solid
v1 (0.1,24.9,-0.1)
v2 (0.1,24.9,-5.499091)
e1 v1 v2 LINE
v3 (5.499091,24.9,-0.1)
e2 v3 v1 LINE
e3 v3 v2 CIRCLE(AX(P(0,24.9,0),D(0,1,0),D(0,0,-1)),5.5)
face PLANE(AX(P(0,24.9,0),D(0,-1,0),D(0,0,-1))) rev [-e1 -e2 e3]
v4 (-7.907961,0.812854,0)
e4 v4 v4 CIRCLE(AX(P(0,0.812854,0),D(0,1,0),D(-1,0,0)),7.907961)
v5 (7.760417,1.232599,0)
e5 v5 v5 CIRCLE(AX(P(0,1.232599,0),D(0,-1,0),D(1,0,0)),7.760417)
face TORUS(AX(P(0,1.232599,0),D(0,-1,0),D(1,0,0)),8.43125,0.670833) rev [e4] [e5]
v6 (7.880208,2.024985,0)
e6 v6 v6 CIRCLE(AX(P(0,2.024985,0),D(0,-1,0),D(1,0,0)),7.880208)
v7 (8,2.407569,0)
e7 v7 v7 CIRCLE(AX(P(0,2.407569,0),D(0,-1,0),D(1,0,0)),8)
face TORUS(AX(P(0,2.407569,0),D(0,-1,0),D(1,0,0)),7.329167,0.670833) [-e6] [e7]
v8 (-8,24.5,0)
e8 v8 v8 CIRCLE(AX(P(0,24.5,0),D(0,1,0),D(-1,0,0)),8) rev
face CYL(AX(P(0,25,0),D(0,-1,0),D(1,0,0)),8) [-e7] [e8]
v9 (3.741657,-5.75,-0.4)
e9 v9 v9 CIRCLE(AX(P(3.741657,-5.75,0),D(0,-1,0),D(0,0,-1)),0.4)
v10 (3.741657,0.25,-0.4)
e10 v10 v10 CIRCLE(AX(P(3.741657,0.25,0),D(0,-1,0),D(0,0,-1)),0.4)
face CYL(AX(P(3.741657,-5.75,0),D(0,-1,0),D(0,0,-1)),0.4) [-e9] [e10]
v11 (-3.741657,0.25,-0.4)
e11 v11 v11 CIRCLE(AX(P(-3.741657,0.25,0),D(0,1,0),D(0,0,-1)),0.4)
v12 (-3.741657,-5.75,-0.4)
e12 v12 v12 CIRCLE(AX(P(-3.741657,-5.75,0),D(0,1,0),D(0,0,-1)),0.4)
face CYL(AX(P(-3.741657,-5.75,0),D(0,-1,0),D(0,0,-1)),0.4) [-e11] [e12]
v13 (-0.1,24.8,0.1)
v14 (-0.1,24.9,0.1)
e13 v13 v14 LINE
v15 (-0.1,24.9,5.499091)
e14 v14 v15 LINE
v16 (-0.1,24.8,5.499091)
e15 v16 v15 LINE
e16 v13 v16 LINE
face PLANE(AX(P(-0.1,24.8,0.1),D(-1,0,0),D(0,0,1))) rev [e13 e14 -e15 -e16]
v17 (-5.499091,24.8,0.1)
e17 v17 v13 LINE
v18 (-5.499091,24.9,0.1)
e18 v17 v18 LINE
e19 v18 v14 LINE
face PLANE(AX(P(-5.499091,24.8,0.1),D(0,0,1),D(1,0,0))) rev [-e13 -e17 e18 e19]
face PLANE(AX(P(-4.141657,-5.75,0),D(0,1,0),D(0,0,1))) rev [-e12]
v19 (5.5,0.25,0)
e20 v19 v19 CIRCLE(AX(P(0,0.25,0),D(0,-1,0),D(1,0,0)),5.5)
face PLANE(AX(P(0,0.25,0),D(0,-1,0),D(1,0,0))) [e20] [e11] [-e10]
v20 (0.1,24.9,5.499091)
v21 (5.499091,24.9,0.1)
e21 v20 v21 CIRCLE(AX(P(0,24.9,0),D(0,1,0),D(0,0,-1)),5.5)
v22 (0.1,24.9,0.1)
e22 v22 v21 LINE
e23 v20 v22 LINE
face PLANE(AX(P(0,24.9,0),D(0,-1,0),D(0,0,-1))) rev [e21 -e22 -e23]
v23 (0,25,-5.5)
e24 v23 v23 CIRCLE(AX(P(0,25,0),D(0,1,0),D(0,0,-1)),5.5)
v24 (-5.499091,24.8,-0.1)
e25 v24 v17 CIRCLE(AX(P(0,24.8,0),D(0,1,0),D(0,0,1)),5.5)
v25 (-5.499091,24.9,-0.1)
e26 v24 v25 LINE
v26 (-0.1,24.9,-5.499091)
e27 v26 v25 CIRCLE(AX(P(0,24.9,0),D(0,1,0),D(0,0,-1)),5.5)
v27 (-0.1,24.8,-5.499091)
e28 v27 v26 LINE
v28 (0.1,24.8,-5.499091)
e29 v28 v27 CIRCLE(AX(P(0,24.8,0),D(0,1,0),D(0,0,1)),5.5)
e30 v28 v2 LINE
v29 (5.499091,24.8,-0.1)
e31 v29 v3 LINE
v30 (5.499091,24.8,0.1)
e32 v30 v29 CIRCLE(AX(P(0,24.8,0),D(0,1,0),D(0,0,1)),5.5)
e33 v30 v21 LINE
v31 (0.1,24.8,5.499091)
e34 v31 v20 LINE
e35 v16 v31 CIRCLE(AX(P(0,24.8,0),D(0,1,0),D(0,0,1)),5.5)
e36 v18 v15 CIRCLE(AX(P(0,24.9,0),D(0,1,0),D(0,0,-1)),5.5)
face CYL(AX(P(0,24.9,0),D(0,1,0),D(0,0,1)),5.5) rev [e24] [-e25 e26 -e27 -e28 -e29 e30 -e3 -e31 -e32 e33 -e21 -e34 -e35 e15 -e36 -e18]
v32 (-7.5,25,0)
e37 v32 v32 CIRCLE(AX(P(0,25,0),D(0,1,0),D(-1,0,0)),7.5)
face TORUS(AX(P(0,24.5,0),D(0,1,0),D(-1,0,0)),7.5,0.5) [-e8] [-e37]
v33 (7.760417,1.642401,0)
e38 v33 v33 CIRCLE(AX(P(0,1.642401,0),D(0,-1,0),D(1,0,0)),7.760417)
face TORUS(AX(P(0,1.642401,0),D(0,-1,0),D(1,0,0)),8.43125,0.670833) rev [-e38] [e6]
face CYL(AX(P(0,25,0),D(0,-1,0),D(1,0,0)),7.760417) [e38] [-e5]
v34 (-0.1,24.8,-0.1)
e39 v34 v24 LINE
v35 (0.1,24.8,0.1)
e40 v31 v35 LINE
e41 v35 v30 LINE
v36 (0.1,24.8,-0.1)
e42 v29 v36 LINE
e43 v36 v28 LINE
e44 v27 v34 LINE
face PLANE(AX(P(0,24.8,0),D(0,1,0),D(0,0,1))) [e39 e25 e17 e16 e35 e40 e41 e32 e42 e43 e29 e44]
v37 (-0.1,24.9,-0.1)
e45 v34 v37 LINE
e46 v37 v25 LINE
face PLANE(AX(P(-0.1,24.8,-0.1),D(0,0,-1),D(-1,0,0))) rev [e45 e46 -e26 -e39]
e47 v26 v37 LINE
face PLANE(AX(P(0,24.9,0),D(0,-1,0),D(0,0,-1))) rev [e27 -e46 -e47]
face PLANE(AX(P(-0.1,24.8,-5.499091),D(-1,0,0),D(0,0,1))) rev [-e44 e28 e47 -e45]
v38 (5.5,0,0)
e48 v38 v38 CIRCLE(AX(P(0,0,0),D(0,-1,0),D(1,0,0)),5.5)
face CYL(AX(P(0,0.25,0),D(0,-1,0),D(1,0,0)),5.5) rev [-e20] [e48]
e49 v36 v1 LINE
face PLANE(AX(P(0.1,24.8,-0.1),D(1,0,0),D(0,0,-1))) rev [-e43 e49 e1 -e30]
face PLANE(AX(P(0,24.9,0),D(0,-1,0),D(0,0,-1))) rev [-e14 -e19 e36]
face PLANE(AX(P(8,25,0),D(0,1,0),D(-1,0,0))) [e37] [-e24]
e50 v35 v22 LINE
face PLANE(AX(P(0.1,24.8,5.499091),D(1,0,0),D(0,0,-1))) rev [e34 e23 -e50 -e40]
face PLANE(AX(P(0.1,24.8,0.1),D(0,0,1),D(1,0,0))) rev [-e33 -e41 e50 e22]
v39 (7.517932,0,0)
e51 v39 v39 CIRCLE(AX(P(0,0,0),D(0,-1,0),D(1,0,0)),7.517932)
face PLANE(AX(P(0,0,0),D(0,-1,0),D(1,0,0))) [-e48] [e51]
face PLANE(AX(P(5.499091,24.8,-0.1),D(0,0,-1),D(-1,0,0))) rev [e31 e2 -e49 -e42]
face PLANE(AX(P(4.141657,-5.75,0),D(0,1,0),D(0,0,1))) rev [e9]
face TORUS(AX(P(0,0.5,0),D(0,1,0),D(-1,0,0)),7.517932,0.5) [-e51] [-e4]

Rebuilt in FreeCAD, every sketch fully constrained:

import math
import FreeCAD as App
import Part
import Sketcher
from FreeCAD import Vector
Q = App.Units.Quantity


def edges_at(feature, points):
    """Names of the edges that pass closest to the given points."""
    edges = feature.Shape.Edges
    near = lambda p: min(range(len(edges)), key=lambda i: edges[i].distToShape(Part.Vertex(*p))[0])
    return sorted({f"Edge{near(p) + 1}" for p in points})


def add_polygon(sketch, points):
    """Adds a closed chain of lines whose ends are joined by coincident constraints."""
    first, n = sketch.GeometryCount, len(points)
    for a, b in zip(points, points[1:] + points[:1]):
        sketch.addGeometry(Part.LineSegment(App.Vector(*a, 0), App.Vector(*b, 0)), False)
    for i in range(n):
        sketch.addConstraint(Sketcher.Constraint("Coincident", first + i, 2, first + (i + 1) % n, 1))

doc = App.newDocument("Part")
params = doc.addObject("Spreadsheet::Sheet", "Params")
for row, (alias, value) in enumerate([
    ("sketch1_width", "8 mm"),
    ("sketch1_height", "25 mm"),
    ("revolution_angle", "360 deg"),
    ("sketch2_diameter", "11 mm"),
    ("pocket1_length", "0.1 mm"),
    ("pocket2_length", "0.1 mm"),
    ("sketch4_diameter", "11 mm"),
    ("pocket3_length", "0.25 mm"),
    ("fillet_radius", "0.5 mm"),
    ("sketch5_height", "6 mm"),
    ("sketch5_width", "0.4 mm"),
    ("revolution2_angle", "360 deg"),
], start=1):
    params.set(f"A{row}", alias)
    params.set(f"B{row}", "=" + value)
    params.setAlias(f"B{row}", alias)

body = doc.addObject("PartDesign::Body", "Body")

# Sketch on XY plane
sketch1 = body.newObject("Sketcher::SketchObject", "Sketch")
sketch1.AttachmentSupport = (doc.getObject("XY_Plane"), [""])
sketch1.MapMode = "FlatFace"
sketch1.addGeometry([
    Part.LineSegment(Vector(8, 25, 0), Vector(0, 25, 0)),  # 0
    Part.LineSegment(Vector(0, 25, 0), Vector(0, 0, 0)),  # 1
    Part.LineSegment(Vector(0, 0, 0), Vector(8, 0, 0)),  # 2
    Part.ArcOfCircle(Part.Circle(Vector(7.42, 0.35, 0), Vector(0, 0, 1), 0.67), math.radians(-31), math.radians(41)),  # 3
    Part.ArcOfCircle(Part.Circle(Vector(8.43, 1.23, 0), Vector(0, 0, 1), 0.67), math.radians(180), math.radians(221)),  # 4
    Part.LineSegment(Vector(7.76, 1.23, 0), Vector(7.76, 1.64, 0)),  # 5
    Part.ArcOfCircle(Part.Circle(Vector(8.43, 1.64, 0), Vector(0, 0, 1), 0.67), math.radians(145), math.radians(180)),  # 6
    Part.ArcOfCircle(Part.Circle(Vector(7.33, 2.41, 0), Vector(0, 0, 1), 0.67), math.radians(-35), math.radians(0)),  # 7
    Part.LineSegment(Vector(8, 2.41, 0), Vector(8, 25, 0)),  # 8
], False)
sketch1.addConstraint([
    Sketcher.Constraint("Coincident", 0, 2, 1, 1),
    Sketcher.Constraint("Coincident", 1, 2, 2, 1),
    Sketcher.Constraint("Coincident", 2, 2, 3, 1),
    Sketcher.Constraint("Tangent", 3, 2, 4, 2),
    Sketcher.Constraint("Tangent", 4, 1, 5, 1),
    Sketcher.Constraint("Tangent", 5, 2, 6, 2),
    Sketcher.Constraint("Tangent", 6, 1, 7, 1),
    Sketcher.Constraint("Tangent", 7, 2, 8, 1),
    Sketcher.Constraint("Coincident", 8, 2, 0, 1),
    Sketcher.Constraint("Horizontal", 0),
    Sketcher.Constraint("Vertical", 1),
    Sketcher.Constraint("Horizontal", 2),
    Sketcher.Constraint("Vertical", 5),
    Sketcher.Constraint("Vertical", 8),
    Sketcher.Constraint("Coincident", 1, 2, -1, 1),
    Sketcher.Constraint("Equal", 3, 4),
    Sketcher.Constraint("Equal", 4, 6),
    Sketcher.Constraint("Equal", 6, 7),
    Sketcher.Constraint("Vertical", 2, 2, 7, 2),
    Sketcher.Constraint("DistanceX", 0, 2, 0, 1, Q("8 mm")),
    Sketcher.Constraint("DistanceY", 1, 2, 1, 1, Q("25 mm")),
    Sketcher.Constraint("DistanceY", 5, 1, 5, 2, Q("0.409802 mm")),
    Sketcher.Constraint("Radius", 3, Q("0.670833 mm")),
    Sketcher.Constraint("DistanceY", 8, 1, 8, 2, Q("22.592431 mm")),
    Sketcher.Constraint("DistanceY", -1, 1, 4, 3, Q("1.232599 mm")),
])
sketch1.setExpression("Constraints[19]", "Params.sketch1_width")
sketch1.setExpression("Constraints[20]", "Params.sketch1_height")
revolution = body.newObject("PartDesign::Revolution", "Revolution")
revolution.Profile = sketch1
revolution.ReferenceAxis = (sketch1, ["V_Axis"])
revolution.setExpression("Angle", "Params.revolution_angle")

# Sketch on XZ plane
sketch2 = body.newObject("Sketcher::SketchObject", "Sketch001")
sketch2.AttachmentSupport = (doc.getObject("XZ_Plane"), [""])
sketch2.MapMode = "FlatFace"
sketch2.AttachmentOffset = App.Placement(Vector(0, 0, -25), App.Rotation())
sketch2.addGeometry(Part.Circle(Vector(0, 0, 0), Vector(0, 0, 1), 6), False)
sketch2.addConstraint([
    Sketcher.Constraint("Coincident", 0, 3, -1, 1),
    Sketcher.Constraint("Diameter", 0, Q("11 mm")),
])
sketch2.setExpression("Constraints[1]", "Params.sketch2_diameter")
pocket1 = body.newObject("PartDesign::Pocket", "Pocket")
pocket1.Profile = sketch2
pocket1.setExpression("Length", "Params.pocket1_length")
pocket1.Reversed = True

# Sketch on XZ plane
sketch3 = body.newObject("Sketcher::SketchObject", "Sketch002")
sketch3.AttachmentSupport = (doc.getObject("XZ_Plane"), [""])
sketch3.MapMode = "FlatFace"
sketch3.AttachmentOffset = App.Placement(Vector(0, 0, -24.9), App.Rotation())
sketch3.addGeometry([
    Part.LineSegment(Vector(5.5, -0.1, 0), Vector(0.1, -0.1, 0)),  # 0
    Part.LineSegment(Vector(0.1, -0.1, 0), Vector(0.1, -5.5, 0)),  # 1
    Part.ArcOfCircle(Part.Circle(Vector(0, 0, 0), Vector(0, 0, 1), 5.5), math.radians(-90), math.radians(-88.96)),  # 2
    Part.ArcOfCircle(Part.Circle(Vector(0, 0, 0), Vector(0, 0, 1), 5.5), math.radians(-91.04), math.radians(-90)),  # 3
    Part.LineSegment(Vector(-0.1, -5.5, 0), Vector(-0.1, -0.1, 0)),  # 4
    Part.LineSegment(Vector(-0.1, -0.1, 0), Vector(-5.5, -0.1, 0)),  # 5
    Part.ArcOfCircle(Part.Circle(Vector(0, 0, 0), Vector(0, 0, 1), 5.5), math.radians(180), math.radians(181.04)),  # 6
    Part.ArcOfCircle(Part.Circle(Vector(0, 0, 0), Vector(0, 0, 1), 5.5), math.radians(178.96), math.radians(180)),  # 7
    Part.LineSegment(Vector(-5.5, 0.1, 0), Vector(-0.1, 0.1, 0)),  # 8
    Part.LineSegment(Vector(-0.1, 0.1, 0), Vector(-0.1, 5.5, 0)),  # 9
    Part.ArcOfCircle(Part.Circle(Vector(0, 0, 0), Vector(0, 0, 1), 5.5), math.radians(90), math.radians(91.04)),  # 10
    Part.ArcOfCircle(Part.Circle(Vector(0, 0, 0), Vector(0, 0, 1), 5.5), math.radians(88.96), math.radians(90)),  # 11
    Part.LineSegment(Vector(0.1, 5.5, 0), Vector(0.1, 0.1, 0)),  # 12
    Part.LineSegment(Vector(0.1, 0.1, 0), Vector(5.5, 0.1, 0)),  # 13
    Part.ArcOfCircle(Part.Circle(Vector(0, 0, 0), Vector(0, 0, 1), 5.5), math.radians(0), math.radians(1.04)),  # 14
    Part.ArcOfCircle(Part.Circle(Vector(0, 0, 0), Vector(0, 0, 1), 5.5), math.radians(-1.04), math.radians(0)),  # 15
], False)
sketch3.addConstraint([
    Sketcher.Constraint("Coincident", 0, 2, 1, 1),
    Sketcher.Constraint("Coincident", 1, 2, 2, 2),
    Sketcher.Constraint("Tangent", 2, 1, 3, 2),
    Sketcher.Constraint("Coincident", 3, 1, 4, 1),
    Sketcher.Constraint("Coincident", 4, 2, 5, 1),
    Sketcher.Constraint("Coincident", 5, 2, 6, 2),
    Sketcher.Constraint("Tangent", 6, 1, 7, 2),
    Sketcher.Constraint("Coincident", 7, 1, 8, 1),
    Sketcher.Constraint("Coincident", 8, 2, 9, 1),
    Sketcher.Constraint("Coincident", 9, 2, 10, 2),
    Sketcher.Constraint("Tangent", 10, 1, 11, 2),
    Sketcher.Constraint("Coincident", 11, 1, 12, 1),
    Sketcher.Constraint("Coincident", 12, 2, 13, 1),
    Sketcher.Constraint("Coincident", 13, 2, 14, 2),
    Sketcher.Constraint("Tangent", 14, 1, 15, 2),
    Sketcher.Constraint("Coincident", 15, 1, 0, 1),
    Sketcher.Constraint("Horizontal", 0),
    Sketcher.Constraint("Vertical", 1),
    Sketcher.Constraint("Vertical", 4),
    Sketcher.Constraint("Horizontal", 5),
    Sketcher.Constraint("Horizontal", 8),
    Sketcher.Constraint("Vertical", 9),
    Sketcher.Constraint("Vertical", 12),
    Sketcher.Constraint("Horizontal", 13),
    Sketcher.Constraint("Coincident", 2, 3, -1, 1),
    Sketcher.Constraint("Coincident", 6, 3, -1, 1),
    Sketcher.Constraint("Coincident", 10, 3, -1, 1),
    Sketcher.Constraint("Coincident", 14, 3, -1, 1),
    Sketcher.Constraint("Equal", 2, 3),
    Sketcher.Constraint("Equal", 3, 6),
    Sketcher.Constraint("Equal", 6, 7),
    Sketcher.Constraint("Equal", 7, 10),
    Sketcher.Constraint("Equal", 10, 11),
    Sketcher.Constraint("Equal", 11, 14),
    Sketcher.Constraint("Equal", 14, 15),
    Sketcher.Constraint("Symmetric", 0, 2, 8, 2, -1, 1),
    Sketcher.Constraint("Symmetric", 4, 2, 12, 2, -1, 1),
    Sketcher.Constraint("Symmetric", 0, 2, 4, 2, -2),
    Sketcher.Constraint("PointOnObject", 2, 1, -2),
    Sketcher.Constraint("PointOnObject", 6, 1, -1),
    Sketcher.Constraint("PointOnObject", 10, 1, -2),
    Sketcher.Constraint("PointOnObject", 14, 1, -1),
    Sketcher.Constraint("Equal", 13, 1),
    Sketcher.Constraint("DistanceX", -1, 1, 0, 2, Q("0.1 mm")),
    Sketcher.Constraint("DistanceY", 2, 1, -1, 1, Q("5.5 mm")),
])
pocket2 = body.newObject("PartDesign::Pocket", "Pocket001")
pocket2.Profile = sketch3
pocket2.setExpression("Length", "Params.pocket2_length")
pocket2.Reversed = True

# Sketch on XZ plane
sketch4 = body.newObject("Sketcher::SketchObject", "Sketch003")
sketch4.AttachmentSupport = (doc.getObject("XZ_Plane"), [""])
sketch4.MapMode = "FlatFace"
sketch4.AttachmentOffset = App.Placement(Vector(0, 0, -0.25), App.Rotation())
sketch4.addGeometry(Part.Circle(Vector(0, 0, 0), Vector(0, 0, 1), 6), False)
sketch4.addConstraint([
    Sketcher.Constraint("Coincident", 0, 3, -1, 1),
    Sketcher.Constraint("Diameter", 0, Q("11 mm")),
])
sketch4.setExpression("Constraints[1]", "Params.sketch4_diameter")
pocket3 = body.newObject("PartDesign::Pocket", "Pocket002")
pocket3.Profile = sketch4
pocket3.setExpression("Length", "Params.pocket3_length")
pocket3.Reversed = True
doc.recompute()

fillet = body.newObject("PartDesign::Fillet", "Fillet")
fillet.Base = (pocket3, edges_at(pocket3, [(-8, 25, 0), (-8, 0, 0)]))
fillet.setExpression("Radius", "Params.fillet_radius")

# Sketch on XY plane
sketch5 = body.newObject("Sketcher::SketchObject", "Sketch004")
sketch5.AttachmentSupport = (doc.getObject("XY_Plane"), [""])
sketch5.MapMode = "FlatFace"
add_polygon(sketch5, [(4.14, 0.25), (4.14, -5.75), (3.74, -5.75), (3.74, 0.25)])  # lines 0-3
sketch5.addGeometry(Part.LineSegment(Vector(3.74, -5.75, 0), Vector(3.74, 0.25, 0)), True)  # axis
sketch5.addConstraint([
    Sketcher.Constraint("Vertical", 0),
    Sketcher.Constraint("Horizontal", 1),
    Sketcher.Constraint("Vertical", 2),
    Sketcher.Constraint("Horizontal", 3),
    Sketcher.Constraint("Vertical", 4),
    Sketcher.Constraint("Coincident", 4, 1, 1, 2),
    Sketcher.Constraint("Horizontal", 3, 2, 4, 2),
    Sketcher.Constraint("DistanceY", 0, 2, 0, 1, Q("6 mm")),
    Sketcher.Constraint("DistanceX", 1, 2, 1, 1, Q("0.4 mm")),
    Sketcher.Constraint("DistanceY", 0, 2, -1, 1, Q("5.75 mm")),
    Sketcher.Constraint("DistanceX", -1, 1, 0, 2, Q("4.141657 mm")),
])
sketch5.setExpression("Constraints[11]", "Params.sketch5_height")
sketch5.setExpression("Constraints[12]", "Params.sketch5_width")
revolution2 = body.newObject("PartDesign::Revolution", "Revolution001")
revolution2.Profile = sketch5
revolution2.ReferenceAxis = (sketch5, ["Axis0"])
revolution2.setExpression("Angle", "Params.revolution2_angle")
doc.recompute()

mirrored = body.newObject("PartDesign::Mirrored", "Mirrored")
mirrored.Originals = [revolution2]
mirrored.MirrorPlane = (doc.getObject("YZ_Plane"), [""])
body.Tip = mirrored

doc.recompute()
